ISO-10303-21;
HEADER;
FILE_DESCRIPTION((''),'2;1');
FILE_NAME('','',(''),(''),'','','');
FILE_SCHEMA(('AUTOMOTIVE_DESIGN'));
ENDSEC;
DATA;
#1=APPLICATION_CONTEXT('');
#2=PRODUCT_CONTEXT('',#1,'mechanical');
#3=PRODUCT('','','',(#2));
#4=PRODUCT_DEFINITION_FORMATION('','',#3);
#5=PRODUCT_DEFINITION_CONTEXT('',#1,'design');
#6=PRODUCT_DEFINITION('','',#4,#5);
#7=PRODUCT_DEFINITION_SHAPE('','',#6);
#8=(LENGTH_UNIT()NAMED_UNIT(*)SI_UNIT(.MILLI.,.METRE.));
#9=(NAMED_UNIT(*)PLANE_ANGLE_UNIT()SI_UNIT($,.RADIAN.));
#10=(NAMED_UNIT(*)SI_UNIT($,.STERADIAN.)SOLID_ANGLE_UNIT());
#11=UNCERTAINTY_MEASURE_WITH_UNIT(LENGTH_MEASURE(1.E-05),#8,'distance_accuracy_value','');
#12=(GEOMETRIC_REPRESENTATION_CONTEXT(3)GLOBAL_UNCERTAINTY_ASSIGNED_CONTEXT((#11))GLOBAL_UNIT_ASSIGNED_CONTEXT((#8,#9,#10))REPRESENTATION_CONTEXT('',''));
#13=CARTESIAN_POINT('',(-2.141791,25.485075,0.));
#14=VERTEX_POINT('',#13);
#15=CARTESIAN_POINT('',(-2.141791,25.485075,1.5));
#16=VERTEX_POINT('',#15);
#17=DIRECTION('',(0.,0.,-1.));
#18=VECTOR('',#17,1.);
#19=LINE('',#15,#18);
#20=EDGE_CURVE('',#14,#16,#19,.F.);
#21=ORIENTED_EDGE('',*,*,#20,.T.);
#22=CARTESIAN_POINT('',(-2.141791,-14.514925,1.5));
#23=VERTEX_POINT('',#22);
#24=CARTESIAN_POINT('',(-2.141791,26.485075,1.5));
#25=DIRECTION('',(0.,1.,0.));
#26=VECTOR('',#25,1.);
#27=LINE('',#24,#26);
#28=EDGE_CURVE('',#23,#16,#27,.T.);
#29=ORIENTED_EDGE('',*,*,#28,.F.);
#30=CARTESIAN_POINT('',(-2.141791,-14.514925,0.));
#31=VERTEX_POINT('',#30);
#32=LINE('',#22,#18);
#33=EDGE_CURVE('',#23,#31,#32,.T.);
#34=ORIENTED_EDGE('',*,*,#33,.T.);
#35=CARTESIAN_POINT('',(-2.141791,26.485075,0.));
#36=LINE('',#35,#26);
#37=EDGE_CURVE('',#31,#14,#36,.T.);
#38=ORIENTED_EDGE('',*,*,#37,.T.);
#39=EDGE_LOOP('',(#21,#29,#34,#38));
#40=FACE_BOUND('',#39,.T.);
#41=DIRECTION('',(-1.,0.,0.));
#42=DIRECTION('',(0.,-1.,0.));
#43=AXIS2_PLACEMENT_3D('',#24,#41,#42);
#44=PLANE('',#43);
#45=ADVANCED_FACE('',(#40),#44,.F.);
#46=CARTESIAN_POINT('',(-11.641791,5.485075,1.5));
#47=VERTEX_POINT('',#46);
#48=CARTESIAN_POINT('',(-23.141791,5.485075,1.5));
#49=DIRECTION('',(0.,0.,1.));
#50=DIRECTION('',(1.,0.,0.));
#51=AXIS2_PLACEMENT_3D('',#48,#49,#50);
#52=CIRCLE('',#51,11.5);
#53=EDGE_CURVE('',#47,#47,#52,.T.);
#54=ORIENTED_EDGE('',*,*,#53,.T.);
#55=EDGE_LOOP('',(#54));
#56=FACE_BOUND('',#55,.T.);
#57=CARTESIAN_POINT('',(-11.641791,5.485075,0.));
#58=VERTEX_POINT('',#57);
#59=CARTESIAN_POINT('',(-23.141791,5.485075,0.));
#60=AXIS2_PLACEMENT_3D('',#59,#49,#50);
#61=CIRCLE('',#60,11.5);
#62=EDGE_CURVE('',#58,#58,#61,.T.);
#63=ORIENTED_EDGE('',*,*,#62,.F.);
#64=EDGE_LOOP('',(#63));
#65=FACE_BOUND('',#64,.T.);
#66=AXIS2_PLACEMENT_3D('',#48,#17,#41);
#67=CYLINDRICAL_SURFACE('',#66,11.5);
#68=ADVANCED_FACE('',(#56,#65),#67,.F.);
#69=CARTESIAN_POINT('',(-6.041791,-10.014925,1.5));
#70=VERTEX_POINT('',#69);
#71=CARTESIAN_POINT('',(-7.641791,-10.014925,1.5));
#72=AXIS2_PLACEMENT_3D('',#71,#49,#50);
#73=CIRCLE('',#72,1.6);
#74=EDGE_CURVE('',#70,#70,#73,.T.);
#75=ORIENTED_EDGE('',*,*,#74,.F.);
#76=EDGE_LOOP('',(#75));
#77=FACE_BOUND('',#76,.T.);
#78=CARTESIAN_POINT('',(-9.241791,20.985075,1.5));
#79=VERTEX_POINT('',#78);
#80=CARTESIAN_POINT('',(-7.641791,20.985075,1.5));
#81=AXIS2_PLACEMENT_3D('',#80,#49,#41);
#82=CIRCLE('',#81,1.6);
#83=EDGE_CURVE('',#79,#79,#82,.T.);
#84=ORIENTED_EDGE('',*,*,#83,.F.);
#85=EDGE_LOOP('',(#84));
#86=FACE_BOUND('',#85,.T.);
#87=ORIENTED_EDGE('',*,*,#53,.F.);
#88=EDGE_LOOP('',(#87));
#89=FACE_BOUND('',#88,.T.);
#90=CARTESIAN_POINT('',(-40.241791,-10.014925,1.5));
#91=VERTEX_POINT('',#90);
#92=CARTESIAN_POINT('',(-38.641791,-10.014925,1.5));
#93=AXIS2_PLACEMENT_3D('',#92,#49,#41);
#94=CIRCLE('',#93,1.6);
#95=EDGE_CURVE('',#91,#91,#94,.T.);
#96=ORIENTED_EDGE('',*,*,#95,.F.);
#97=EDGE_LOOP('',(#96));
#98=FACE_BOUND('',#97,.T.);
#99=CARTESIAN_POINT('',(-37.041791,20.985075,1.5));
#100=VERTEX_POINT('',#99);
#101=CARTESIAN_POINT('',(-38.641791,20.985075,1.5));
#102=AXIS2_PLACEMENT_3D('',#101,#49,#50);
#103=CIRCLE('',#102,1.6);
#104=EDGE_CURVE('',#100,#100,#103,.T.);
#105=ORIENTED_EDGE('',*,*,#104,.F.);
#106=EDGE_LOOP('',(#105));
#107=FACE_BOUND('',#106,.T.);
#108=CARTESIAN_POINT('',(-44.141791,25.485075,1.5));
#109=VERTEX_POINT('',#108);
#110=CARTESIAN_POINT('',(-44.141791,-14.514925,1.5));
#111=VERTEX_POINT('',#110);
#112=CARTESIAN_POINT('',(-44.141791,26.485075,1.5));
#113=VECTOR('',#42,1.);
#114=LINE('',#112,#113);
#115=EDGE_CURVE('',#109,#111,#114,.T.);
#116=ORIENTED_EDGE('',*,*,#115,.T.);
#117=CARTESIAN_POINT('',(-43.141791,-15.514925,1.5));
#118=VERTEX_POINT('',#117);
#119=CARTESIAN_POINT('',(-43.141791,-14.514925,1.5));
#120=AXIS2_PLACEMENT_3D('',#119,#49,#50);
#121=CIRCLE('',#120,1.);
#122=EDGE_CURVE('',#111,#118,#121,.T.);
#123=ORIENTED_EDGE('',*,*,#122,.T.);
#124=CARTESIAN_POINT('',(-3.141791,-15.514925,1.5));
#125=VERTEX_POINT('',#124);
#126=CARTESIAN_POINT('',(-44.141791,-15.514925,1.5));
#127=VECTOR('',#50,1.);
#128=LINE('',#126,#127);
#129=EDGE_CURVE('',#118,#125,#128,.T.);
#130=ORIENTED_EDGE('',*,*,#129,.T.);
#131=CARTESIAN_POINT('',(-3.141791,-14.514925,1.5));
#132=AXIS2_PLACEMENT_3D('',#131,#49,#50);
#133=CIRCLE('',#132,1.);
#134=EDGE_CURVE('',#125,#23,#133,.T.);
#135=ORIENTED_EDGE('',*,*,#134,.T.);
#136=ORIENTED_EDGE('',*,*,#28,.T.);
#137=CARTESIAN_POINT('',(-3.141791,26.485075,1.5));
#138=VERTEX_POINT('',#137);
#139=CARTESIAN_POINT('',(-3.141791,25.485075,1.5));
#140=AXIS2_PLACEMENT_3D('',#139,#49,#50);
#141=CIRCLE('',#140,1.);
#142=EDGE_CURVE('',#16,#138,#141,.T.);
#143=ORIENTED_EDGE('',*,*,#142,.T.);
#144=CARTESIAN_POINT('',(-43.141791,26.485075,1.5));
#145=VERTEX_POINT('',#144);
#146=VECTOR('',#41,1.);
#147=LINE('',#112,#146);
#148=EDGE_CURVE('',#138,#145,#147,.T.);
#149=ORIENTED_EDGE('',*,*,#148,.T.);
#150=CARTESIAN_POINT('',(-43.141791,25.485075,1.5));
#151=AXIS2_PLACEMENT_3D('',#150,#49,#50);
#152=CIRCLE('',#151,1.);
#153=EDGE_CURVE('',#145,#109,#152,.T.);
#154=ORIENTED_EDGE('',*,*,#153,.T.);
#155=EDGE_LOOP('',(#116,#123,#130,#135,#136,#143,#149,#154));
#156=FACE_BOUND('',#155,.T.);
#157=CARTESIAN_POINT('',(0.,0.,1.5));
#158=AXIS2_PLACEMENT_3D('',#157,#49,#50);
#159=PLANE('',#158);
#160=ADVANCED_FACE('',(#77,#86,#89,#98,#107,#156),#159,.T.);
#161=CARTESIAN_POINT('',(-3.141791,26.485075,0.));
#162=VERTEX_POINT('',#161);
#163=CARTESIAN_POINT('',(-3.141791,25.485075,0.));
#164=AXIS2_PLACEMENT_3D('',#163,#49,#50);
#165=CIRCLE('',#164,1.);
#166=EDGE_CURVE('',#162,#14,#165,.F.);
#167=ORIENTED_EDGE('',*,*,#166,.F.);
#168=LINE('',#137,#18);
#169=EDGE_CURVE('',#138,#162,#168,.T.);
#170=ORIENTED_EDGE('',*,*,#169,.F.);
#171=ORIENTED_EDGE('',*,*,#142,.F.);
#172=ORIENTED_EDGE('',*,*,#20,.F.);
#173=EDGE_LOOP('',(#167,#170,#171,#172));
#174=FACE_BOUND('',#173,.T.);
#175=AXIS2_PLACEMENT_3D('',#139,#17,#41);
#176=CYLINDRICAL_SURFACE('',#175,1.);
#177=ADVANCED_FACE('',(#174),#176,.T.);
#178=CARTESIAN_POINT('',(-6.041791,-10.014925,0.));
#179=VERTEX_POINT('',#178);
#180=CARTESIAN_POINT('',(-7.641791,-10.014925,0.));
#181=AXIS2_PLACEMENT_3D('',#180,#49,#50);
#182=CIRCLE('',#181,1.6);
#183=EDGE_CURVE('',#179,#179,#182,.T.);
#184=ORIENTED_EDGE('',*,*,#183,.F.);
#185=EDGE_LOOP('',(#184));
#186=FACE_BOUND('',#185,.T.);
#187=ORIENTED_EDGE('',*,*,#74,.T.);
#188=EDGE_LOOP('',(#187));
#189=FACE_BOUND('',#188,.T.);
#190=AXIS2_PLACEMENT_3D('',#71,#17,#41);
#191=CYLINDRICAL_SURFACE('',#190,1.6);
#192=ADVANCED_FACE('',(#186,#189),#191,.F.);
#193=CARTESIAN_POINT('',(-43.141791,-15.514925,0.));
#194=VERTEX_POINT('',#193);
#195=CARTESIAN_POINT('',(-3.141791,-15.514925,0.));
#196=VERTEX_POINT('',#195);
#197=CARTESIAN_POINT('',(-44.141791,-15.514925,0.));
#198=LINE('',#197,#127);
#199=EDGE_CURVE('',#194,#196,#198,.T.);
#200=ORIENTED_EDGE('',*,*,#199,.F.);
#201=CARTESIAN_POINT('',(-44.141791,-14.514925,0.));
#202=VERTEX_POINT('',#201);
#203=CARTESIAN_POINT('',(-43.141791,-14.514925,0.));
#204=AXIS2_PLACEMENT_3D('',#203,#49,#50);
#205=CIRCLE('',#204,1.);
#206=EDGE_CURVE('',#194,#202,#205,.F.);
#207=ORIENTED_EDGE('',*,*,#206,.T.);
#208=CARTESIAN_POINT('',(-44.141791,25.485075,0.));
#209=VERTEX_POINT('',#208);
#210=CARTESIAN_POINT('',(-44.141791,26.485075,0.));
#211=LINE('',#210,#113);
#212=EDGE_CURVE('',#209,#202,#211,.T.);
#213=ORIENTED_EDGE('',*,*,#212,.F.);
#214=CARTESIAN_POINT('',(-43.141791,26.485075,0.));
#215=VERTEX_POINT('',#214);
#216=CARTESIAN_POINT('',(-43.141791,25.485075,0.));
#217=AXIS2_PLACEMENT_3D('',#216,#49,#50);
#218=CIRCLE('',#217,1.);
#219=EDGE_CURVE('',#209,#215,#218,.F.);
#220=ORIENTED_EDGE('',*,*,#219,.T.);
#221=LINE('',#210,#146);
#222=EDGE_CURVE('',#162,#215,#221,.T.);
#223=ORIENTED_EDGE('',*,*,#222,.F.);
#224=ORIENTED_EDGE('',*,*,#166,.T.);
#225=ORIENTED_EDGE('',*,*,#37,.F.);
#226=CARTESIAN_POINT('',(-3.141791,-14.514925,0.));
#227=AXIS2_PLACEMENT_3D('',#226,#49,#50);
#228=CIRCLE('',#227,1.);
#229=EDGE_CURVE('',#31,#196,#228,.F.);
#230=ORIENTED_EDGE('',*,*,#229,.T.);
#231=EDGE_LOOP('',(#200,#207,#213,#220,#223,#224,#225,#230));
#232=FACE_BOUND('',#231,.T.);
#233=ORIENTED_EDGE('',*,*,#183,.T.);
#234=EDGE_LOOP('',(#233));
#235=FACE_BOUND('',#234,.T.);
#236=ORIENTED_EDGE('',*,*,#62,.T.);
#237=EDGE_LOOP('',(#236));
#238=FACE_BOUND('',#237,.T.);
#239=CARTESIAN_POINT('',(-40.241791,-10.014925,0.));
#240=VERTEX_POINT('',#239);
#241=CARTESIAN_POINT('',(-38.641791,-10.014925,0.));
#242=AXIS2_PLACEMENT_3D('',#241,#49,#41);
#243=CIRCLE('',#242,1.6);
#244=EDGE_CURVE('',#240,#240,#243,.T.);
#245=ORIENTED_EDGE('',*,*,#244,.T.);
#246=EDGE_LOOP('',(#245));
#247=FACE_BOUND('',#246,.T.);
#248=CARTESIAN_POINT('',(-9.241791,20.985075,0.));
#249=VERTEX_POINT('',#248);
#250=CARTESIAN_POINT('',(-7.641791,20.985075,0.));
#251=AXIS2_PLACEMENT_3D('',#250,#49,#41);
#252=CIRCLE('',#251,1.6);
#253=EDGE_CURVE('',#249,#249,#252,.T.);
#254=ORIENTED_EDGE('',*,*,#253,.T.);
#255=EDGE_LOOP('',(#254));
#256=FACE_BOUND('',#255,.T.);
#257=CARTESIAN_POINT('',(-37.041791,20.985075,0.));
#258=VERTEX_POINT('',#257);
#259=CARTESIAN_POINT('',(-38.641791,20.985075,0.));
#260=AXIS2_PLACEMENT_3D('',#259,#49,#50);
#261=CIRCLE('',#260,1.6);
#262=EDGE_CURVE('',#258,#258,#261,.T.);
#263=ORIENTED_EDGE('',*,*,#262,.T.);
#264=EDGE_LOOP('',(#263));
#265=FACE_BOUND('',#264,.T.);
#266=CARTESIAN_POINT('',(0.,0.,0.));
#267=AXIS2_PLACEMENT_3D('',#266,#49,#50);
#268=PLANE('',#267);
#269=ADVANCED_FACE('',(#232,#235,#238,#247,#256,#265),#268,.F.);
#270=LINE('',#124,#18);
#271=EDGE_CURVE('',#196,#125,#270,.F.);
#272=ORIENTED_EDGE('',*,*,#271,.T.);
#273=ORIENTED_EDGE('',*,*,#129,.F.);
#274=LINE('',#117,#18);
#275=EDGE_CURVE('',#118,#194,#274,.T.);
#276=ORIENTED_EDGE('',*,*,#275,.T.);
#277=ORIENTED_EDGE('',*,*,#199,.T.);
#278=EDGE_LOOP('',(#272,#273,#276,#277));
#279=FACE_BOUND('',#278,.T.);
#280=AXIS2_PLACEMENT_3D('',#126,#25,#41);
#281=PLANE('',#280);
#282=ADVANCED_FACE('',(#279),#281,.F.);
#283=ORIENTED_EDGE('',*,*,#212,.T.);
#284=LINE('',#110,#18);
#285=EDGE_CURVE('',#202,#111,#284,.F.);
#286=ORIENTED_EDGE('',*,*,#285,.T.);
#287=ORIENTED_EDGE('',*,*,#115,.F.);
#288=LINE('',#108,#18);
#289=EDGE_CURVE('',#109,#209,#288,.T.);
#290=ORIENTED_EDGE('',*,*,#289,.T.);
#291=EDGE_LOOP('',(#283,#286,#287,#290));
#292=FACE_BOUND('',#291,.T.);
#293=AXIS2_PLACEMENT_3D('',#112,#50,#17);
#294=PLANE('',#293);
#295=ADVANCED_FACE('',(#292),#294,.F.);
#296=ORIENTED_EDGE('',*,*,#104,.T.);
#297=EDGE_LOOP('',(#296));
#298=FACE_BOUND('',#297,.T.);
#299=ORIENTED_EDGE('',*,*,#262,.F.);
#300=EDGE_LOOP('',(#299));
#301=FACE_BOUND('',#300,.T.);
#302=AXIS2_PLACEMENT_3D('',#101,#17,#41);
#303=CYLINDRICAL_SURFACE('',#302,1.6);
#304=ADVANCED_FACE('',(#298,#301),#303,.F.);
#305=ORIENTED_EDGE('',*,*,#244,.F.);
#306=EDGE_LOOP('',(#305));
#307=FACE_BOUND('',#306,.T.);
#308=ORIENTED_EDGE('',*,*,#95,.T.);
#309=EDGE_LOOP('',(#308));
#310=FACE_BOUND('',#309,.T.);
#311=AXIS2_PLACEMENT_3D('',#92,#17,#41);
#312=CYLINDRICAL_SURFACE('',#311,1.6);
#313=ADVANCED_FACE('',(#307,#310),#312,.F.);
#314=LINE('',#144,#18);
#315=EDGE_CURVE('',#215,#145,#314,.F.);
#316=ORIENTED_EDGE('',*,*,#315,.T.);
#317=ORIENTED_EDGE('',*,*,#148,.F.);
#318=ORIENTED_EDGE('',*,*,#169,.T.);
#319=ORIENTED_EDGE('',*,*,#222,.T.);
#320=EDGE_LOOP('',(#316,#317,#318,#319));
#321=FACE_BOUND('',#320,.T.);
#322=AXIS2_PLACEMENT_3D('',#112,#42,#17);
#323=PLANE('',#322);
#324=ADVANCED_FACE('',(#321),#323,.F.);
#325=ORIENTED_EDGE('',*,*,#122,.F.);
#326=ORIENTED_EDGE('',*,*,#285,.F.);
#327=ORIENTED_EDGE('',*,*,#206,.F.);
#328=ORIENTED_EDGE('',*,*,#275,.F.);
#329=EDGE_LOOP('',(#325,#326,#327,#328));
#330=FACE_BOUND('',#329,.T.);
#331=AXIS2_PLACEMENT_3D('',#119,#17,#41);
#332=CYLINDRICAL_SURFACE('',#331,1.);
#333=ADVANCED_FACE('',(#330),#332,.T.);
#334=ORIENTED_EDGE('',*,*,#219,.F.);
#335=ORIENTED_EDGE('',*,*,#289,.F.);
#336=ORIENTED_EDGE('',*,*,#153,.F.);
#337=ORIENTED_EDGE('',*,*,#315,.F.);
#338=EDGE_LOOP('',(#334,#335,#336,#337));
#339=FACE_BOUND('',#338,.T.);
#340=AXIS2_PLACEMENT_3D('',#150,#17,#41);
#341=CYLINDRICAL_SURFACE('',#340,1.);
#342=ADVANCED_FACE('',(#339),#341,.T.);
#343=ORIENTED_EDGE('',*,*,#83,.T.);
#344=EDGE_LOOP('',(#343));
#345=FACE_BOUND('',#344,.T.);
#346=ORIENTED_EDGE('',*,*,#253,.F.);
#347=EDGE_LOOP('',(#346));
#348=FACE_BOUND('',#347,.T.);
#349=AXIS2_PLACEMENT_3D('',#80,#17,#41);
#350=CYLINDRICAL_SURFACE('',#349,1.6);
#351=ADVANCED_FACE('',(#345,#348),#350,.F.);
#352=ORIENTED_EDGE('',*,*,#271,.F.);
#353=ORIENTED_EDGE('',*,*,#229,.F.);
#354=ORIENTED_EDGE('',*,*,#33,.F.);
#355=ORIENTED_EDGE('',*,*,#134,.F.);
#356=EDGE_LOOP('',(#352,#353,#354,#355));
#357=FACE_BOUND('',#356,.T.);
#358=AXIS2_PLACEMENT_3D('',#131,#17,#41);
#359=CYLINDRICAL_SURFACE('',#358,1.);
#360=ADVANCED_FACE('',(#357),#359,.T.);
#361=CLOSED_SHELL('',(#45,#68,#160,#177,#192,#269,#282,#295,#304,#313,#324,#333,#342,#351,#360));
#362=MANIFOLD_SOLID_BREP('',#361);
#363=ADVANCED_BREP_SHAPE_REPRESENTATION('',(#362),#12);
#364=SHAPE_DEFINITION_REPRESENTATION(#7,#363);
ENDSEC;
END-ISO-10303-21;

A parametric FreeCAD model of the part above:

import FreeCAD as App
import Part
import Sketcher
Q = App.Units.Quantity


def edges_at(feature, points):
    """Names of the edges that pass closest to the given points."""
    edges = feature.Shape.Edges
    near = lambda p: min(range(len(edges)), key=lambda i: edges[i].distToShape(Part.Vertex(*p))[0])
    return sorted({f"Edge{near(p) + 1}" for p in points})

doc = App.newDocument("Part")
params = doc.addObject("Spreadsheet::Sheet", "Params")
for row, (alias, value) in enumerate([
    ("sketch1_diameter", "23 mm"),
    ("sketch1_diameter2", "3.2 mm"),
    ("sketch1_width", "42 mm"),
    ("pad1_length", "1.5 mm"),
    ("fillet_radius", "1 mm"),
], start=1):
    params.set(f"A{row}", alias)
    params.set(f"B{row}", "=" + value)
    params.setAlias(f"B{row}", alias)

body = doc.addObject("PartDesign::Body", "Body")

sketch1 = body.newObject("Sketcher::SketchObject", "Sketch")
sketch1.AttachmentSupport = (doc.getObject("XY_Plane"), [""])
sketch1.MapMode = "FlatFace"
sketch1.addGeometry([
    Part.LineSegment(App.Vector(-44.1, 26.5, 0), App.Vector(-44.1, -15.5, 0)),
    Part.LineSegment(App.Vector(-44.1, -15.5, 0), App.Vector(-2.1, -15.5, 0)),
    Part.LineSegment(App.Vector(-2.1, -15.5, 0), App.Vector(-2.1, 26.5, 0)),
    Part.LineSegment(App.Vector(-2.1, 26.5, 0), App.Vector(-44.1, 26.5, 0)),
    Part.Circle(App.Vector(-38.6, -10, 0), App.Vector(0, 0, 1), 1.6),
    Part.Circle(App.Vector(-7.6, -10, 0), App.Vector(0, 0, 1), 1.6),
    Part.Circle(App.Vector(-23.1, 5.5, 0), App.Vector(0, 0, 1), 11.5),
    Part.Circle(App.Vector(-38.6, 21, 0), App.Vector(0, 0, 1), 1.6),
    Part.Circle(App.Vector(-7.6, 21, 0), App.Vector(0, 0, 1), 1.6),
], False)
sketch1.addConstraint([
    Sketcher.Constraint("Coincident", 0, 2, 1, 1),
    Sketcher.Constraint("Coincident", 1, 2, 2, 1),
    Sketcher.Constraint("Coincident", 2, 2, 3, 1),
    Sketcher.Constraint("Coincident", 3, 2, 0, 1),
    Sketcher.Constraint("Vertical", 0),
    Sketcher.Constraint("Horizontal", 1),
    Sketcher.Constraint("Vertical", 2),
    Sketcher.Constraint("Horizontal", 3),
    Sketcher.Constraint("Equal", 4, 5),
    Sketcher.Constraint("Equal", 5, 7),
    Sketcher.Constraint("Equal", 7, 8),
    Sketcher.Constraint("Horizontal", 4, 3, 5, 3),
    Sketcher.Constraint("Horizontal", 7, 3, 8, 3),
    Sketcher.Constraint("Vertical", 4, 3, 7, 3),
    Sketcher.Constraint("Vertical", 5, 3, 8, 3),
    Sketcher.Constraint("Equal", 3, 0),
    Sketcher.Constraint("Diameter", 6, Q("23 mm")),
    Sketcher.Constraint("Diameter", 4, Q("3.2 mm")),
    Sketcher.Constraint("DistanceX", 1, 1, 1, 2, Q("42 mm")),
    Sketcher.Constraint("DistanceX", 4, 3, 5, 3, Q("31 mm")),
    Sketcher.Constraint("DistanceY", 4, 3, 7, 3, Q("31 mm")),
    Sketcher.Constraint("DistanceX", 0, 2, 6, 3, Q("21 mm")),
    Sketcher.Constraint("DistanceY", 0, 2, 6, 3, Q("21 mm")),
    Sketcher.Constraint("DistanceX", 4, 3, 6, 3, Q("15.5 mm")),
    Sketcher.Constraint("DistanceY", 4, 3, 6, 3, Q("15.5 mm")),
    Sketcher.Constraint("DistanceX", 4, 3, -1, 1, Q("38.641791 mm")),
    Sketcher.Constraint("DistanceY", 4, 3, -1, 1, Q("10.014925 mm")),
])
sketch1.setExpression("Constraints[16]", "Params.sketch1_diameter")
sketch1.setExpression("Constraints[17]", "Params.sketch1_diameter2")
sketch1.setExpression("Constraints[18]", "Params.sketch1_width")
pad1 = body.newObject("PartDesign::Pad", "Pad")
pad1.Profile = sketch1
pad1.setExpression("Length", "Params.pad1_length")
doc.recompute()

fillet = body.newObject("PartDesign::Fillet", "Fillet")
fillet.Base = (pad1, edges_at(pad1, [
    (-44.142, 26.485, 0.75),
    (-2.142, 26.485, 0.75),
    (-2.142, -15.515, 0.75),
    (-44.142, -15.515, 0.75),
]))
fillet.setExpression("Radius", "Params.fillet_radius")

doc.recompute()
